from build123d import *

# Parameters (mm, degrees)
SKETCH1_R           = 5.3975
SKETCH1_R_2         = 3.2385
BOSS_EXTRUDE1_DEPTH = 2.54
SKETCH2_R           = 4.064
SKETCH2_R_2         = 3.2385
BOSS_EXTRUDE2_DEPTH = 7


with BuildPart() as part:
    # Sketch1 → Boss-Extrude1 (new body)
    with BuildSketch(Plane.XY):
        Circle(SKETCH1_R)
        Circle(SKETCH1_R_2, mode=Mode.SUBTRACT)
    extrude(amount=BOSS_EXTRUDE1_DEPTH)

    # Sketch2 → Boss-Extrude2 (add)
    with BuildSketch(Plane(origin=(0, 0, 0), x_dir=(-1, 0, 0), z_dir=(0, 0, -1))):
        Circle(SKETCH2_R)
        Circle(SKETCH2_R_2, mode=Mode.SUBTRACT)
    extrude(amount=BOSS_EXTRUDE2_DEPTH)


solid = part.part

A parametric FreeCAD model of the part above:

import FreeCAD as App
import Part
import Sketcher

V = App.Vector
Q = App.Units.Quantity

doc = App.newDocument("Part")
params = doc.addObject("Spreadsheet::Sheet", "Params")
for row, (alias, value) in enumerate([
    ("sketch1_diameter", "0.425 in"),
    ("sketch1_diameter2", "0.255 in"),
    ("pad1_length", "0.1 in"),
    ("sketch2_diameter", "0.32 in"),
    ("sketch2_diameter2", "0.255 in"),
    ("pad2_length", "7 mm"),
], start=1):
    params.set(f"A{row}", alias)
    params.set(f"B{row}", "=" + value)
    params.setAlias(f"B{row}", alias)

body = doc.addObject("PartDesign::Body", "Body")

sketch1 = body.newObject("Sketcher::SketchObject", "Sketch")
sketch1.AttachmentSupport = (doc.getObject("XY_Plane"), [""])
sketch1.MapMode = "FlatFace"
sketch1.addGeometry([
    Part.Circle(V(0, 0, 0), V(0, 0, 1), 5.3975),
    Part.Circle(V(0, 0, 0), V(0, 0, 1), 3.2385),
], False)
sketch1.addConstraint([
    Sketcher.Constraint("Coincident", 0, 3, -1, 1),
    Sketcher.Constraint("Coincident", 1, 3, -1, 1),
    Sketcher.Constraint("Diameter", 0, Q("0.425 in")),
    Sketcher.Constraint("Diameter", 1, Q("0.255 in")),
])
sketch1.setExpression("Constraints[2]", "Params.sketch1_diameter")
sketch1.setExpression("Constraints[3]", "Params.sketch1_diameter2")
pad1 = body.newObject("PartDesign::Pad", "Pad")
pad1.Profile = sketch1
pad1.setExpression("Length", "Params.pad1_length")

sketch2 = body.newObject("Sketcher::SketchObject", "Sketch001")
sketch2.AttachmentSupport = (doc.getObject("XY_Plane"), [""])
sketch2.MapMode = "FlatFace"
sketch2.addGeometry([
    Part.Circle(V(0, 0, 0), V(0, 0, 1), 4.064),
    Part.Circle(V(0, 0, 0), V(0, 0, 1), 3.2385),
], False)
sketch2.addConstraint([
    Sketcher.Constraint("Coincident", 0, 3, -1, 1),
    Sketcher.Constraint("Coincident", 1, 3, -1, 1),
    Sketcher.Constraint("Diameter", 0, Q("0.32 in")),
    Sketcher.Constraint("Diameter", 1, Q("0.255 in")),
])
sketch2.setExpression("Constraints[2]", "Params.sketch2_diameter")
sketch2.setExpression("Constraints[3]", "Params.sketch2_diameter2")
pad2 = body.newObject("PartDesign::Pad", "Pad001")
pad2.Profile = sketch2
pad2.setExpression("Length", "Params.pad2_length")
pad2.Reversed = True

doc.recompute()
